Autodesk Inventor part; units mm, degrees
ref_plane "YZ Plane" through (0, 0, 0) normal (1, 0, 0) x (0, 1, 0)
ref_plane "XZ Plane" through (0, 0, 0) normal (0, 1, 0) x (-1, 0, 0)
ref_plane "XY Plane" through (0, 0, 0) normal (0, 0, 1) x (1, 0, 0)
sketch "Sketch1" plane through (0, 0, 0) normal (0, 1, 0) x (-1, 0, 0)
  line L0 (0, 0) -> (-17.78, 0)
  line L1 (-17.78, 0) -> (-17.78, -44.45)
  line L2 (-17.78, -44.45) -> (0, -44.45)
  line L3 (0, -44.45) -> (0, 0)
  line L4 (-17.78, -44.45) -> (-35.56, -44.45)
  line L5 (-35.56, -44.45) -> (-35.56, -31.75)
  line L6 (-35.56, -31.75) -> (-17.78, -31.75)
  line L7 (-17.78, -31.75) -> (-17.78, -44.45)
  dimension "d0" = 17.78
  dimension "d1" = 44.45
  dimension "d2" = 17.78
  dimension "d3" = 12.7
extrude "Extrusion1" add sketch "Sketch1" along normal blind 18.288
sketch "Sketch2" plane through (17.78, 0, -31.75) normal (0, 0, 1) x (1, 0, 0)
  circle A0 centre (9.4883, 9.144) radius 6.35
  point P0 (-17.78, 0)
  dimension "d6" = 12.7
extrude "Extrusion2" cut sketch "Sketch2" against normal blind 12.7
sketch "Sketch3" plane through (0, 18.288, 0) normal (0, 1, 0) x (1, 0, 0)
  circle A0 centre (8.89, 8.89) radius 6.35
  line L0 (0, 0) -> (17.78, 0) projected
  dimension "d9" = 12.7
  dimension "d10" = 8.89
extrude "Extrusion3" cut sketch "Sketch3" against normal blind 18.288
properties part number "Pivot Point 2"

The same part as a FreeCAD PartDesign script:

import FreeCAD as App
import Part
import Sketcher

V = App.Vector
Q = App.Units.Quantity


def add_polygon(sketch, points):
    """Adds a closed chain of lines whose ends are joined by coincident constraints."""
    first, n = sketch.GeometryCount, len(points)
    for a, b in zip(points, points[1:] + points[:1]):
        sketch.addGeometry(Part.LineSegment(App.Vector(*a, 0), App.Vector(*b, 0)), False)
    for i in range(n):
        sketch.addConstraint(Sketcher.Constraint("Coincident", first + i, 2, first + (i + 1) % n, 1))

doc = App.newDocument("Part")
body = doc.addObject("PartDesign::Body", "Body")

# Sketch on XZ plane
sketch1 = body.newObject("Sketcher::SketchObject", "Sketch")
sketch1.AttachmentSupport = (doc.getObject("XZ_Plane"), [""])
sketch1.MapMode = "FlatFace"
add_polygon(sketch1, [(0, -44.45), (0, 0), (17.78, 0), (17.78, -31.75), (35.56, -31.75), (35.56, -44.45)])  # lines 0-5
sketch1.addConstraint([
    Sketcher.Constraint("Vertical", 0),
    Sketcher.Constraint("Horizontal", 1),
    Sketcher.Constraint("Vertical", 2),
    Sketcher.Constraint("Horizontal", 3),
    Sketcher.Constraint("Vertical", 4),
    Sketcher.Constraint("Horizontal", 5),
    Sketcher.Constraint("Coincident", 0, 2, -1, 1),
    Sketcher.Constraint("Equal", 1, 3),
    Sketcher.Constraint("DistanceX", 1, 1, 1, 2, Q("0.7 in")),
    Sketcher.Constraint("DistanceY", 4, 2, 4, 1, Q("0.5 in")),
    Sketcher.Constraint("DistanceY", 0, 1, 0, 2, Q("1.75 in")),
])
pad1 = body.newObject("PartDesign::Pad", "Pad")
pad1.Profile = sketch1
pad1.Length = Q("0.72 in")
pad1.Reversed = True

# Sketch on XY plane
sketch2 = body.newObject("Sketcher::SketchObject", "Sketch001")
sketch2.AttachmentSupport = (doc.getObject("XY_Plane"), [""])
sketch2.MapMode = "FlatFace"
sketch2.AttachmentOffset = App.Placement(V(0, 0, -1.25 * 25.4), App.Rotation())
sketch2.addGeometry(Part.Circle(V(27.2683, 9.144, 0), V(0, 0, 1), 6.35), False)
sketch2.addConstraint([
    Sketcher.Constraint("Diameter", 0, Q("0.5 in")),
    Sketcher.Constraint("DistanceY", -1, 1, 0, 3, Q("0.36 in")),
    Sketcher.Constraint("DistanceX", -1, 1, 0, 3, 27.2683),
])
pocket1 = body.newObject("PartDesign::Pocket", "Pocket")
pocket1.Profile = sketch2
pocket1.Length = Q("0.5 in")

# Sketch on XZ plane
sketch3 = body.newObject("Sketcher::SketchObject", "Sketch002")
sketch3.AttachmentSupport = (doc.getObject("XZ_Plane"), [""])
sketch3.MapMode = "FlatFace"
sketch3.AttachmentOffset = App.Placement(V(0, 0, -0.72 * 25.4), App.Rotation())
sketch3.addGeometry(Part.Circle(V(8.89, -8.89, 0), V(0, 0, 1), 6.35), False)
sketch3.addConstraint([
    Sketcher.Constraint("Diameter", 0, Q("0.5 in")),
    Sketcher.Constraint("DistanceX", -1, 1, 0, 3, Q("0.35 in")),
    Sketcher.Constraint("DistanceY", 0, 3, -1, 1, Q("0.35 in")),
])
pocket2 = body.newObject("PartDesign::Pocket", "Pocket001")
pocket2.Profile = sketch3
pocket2.Length = Q("0.72 in")
pocket2.Reversed = True

doc.recompute()
